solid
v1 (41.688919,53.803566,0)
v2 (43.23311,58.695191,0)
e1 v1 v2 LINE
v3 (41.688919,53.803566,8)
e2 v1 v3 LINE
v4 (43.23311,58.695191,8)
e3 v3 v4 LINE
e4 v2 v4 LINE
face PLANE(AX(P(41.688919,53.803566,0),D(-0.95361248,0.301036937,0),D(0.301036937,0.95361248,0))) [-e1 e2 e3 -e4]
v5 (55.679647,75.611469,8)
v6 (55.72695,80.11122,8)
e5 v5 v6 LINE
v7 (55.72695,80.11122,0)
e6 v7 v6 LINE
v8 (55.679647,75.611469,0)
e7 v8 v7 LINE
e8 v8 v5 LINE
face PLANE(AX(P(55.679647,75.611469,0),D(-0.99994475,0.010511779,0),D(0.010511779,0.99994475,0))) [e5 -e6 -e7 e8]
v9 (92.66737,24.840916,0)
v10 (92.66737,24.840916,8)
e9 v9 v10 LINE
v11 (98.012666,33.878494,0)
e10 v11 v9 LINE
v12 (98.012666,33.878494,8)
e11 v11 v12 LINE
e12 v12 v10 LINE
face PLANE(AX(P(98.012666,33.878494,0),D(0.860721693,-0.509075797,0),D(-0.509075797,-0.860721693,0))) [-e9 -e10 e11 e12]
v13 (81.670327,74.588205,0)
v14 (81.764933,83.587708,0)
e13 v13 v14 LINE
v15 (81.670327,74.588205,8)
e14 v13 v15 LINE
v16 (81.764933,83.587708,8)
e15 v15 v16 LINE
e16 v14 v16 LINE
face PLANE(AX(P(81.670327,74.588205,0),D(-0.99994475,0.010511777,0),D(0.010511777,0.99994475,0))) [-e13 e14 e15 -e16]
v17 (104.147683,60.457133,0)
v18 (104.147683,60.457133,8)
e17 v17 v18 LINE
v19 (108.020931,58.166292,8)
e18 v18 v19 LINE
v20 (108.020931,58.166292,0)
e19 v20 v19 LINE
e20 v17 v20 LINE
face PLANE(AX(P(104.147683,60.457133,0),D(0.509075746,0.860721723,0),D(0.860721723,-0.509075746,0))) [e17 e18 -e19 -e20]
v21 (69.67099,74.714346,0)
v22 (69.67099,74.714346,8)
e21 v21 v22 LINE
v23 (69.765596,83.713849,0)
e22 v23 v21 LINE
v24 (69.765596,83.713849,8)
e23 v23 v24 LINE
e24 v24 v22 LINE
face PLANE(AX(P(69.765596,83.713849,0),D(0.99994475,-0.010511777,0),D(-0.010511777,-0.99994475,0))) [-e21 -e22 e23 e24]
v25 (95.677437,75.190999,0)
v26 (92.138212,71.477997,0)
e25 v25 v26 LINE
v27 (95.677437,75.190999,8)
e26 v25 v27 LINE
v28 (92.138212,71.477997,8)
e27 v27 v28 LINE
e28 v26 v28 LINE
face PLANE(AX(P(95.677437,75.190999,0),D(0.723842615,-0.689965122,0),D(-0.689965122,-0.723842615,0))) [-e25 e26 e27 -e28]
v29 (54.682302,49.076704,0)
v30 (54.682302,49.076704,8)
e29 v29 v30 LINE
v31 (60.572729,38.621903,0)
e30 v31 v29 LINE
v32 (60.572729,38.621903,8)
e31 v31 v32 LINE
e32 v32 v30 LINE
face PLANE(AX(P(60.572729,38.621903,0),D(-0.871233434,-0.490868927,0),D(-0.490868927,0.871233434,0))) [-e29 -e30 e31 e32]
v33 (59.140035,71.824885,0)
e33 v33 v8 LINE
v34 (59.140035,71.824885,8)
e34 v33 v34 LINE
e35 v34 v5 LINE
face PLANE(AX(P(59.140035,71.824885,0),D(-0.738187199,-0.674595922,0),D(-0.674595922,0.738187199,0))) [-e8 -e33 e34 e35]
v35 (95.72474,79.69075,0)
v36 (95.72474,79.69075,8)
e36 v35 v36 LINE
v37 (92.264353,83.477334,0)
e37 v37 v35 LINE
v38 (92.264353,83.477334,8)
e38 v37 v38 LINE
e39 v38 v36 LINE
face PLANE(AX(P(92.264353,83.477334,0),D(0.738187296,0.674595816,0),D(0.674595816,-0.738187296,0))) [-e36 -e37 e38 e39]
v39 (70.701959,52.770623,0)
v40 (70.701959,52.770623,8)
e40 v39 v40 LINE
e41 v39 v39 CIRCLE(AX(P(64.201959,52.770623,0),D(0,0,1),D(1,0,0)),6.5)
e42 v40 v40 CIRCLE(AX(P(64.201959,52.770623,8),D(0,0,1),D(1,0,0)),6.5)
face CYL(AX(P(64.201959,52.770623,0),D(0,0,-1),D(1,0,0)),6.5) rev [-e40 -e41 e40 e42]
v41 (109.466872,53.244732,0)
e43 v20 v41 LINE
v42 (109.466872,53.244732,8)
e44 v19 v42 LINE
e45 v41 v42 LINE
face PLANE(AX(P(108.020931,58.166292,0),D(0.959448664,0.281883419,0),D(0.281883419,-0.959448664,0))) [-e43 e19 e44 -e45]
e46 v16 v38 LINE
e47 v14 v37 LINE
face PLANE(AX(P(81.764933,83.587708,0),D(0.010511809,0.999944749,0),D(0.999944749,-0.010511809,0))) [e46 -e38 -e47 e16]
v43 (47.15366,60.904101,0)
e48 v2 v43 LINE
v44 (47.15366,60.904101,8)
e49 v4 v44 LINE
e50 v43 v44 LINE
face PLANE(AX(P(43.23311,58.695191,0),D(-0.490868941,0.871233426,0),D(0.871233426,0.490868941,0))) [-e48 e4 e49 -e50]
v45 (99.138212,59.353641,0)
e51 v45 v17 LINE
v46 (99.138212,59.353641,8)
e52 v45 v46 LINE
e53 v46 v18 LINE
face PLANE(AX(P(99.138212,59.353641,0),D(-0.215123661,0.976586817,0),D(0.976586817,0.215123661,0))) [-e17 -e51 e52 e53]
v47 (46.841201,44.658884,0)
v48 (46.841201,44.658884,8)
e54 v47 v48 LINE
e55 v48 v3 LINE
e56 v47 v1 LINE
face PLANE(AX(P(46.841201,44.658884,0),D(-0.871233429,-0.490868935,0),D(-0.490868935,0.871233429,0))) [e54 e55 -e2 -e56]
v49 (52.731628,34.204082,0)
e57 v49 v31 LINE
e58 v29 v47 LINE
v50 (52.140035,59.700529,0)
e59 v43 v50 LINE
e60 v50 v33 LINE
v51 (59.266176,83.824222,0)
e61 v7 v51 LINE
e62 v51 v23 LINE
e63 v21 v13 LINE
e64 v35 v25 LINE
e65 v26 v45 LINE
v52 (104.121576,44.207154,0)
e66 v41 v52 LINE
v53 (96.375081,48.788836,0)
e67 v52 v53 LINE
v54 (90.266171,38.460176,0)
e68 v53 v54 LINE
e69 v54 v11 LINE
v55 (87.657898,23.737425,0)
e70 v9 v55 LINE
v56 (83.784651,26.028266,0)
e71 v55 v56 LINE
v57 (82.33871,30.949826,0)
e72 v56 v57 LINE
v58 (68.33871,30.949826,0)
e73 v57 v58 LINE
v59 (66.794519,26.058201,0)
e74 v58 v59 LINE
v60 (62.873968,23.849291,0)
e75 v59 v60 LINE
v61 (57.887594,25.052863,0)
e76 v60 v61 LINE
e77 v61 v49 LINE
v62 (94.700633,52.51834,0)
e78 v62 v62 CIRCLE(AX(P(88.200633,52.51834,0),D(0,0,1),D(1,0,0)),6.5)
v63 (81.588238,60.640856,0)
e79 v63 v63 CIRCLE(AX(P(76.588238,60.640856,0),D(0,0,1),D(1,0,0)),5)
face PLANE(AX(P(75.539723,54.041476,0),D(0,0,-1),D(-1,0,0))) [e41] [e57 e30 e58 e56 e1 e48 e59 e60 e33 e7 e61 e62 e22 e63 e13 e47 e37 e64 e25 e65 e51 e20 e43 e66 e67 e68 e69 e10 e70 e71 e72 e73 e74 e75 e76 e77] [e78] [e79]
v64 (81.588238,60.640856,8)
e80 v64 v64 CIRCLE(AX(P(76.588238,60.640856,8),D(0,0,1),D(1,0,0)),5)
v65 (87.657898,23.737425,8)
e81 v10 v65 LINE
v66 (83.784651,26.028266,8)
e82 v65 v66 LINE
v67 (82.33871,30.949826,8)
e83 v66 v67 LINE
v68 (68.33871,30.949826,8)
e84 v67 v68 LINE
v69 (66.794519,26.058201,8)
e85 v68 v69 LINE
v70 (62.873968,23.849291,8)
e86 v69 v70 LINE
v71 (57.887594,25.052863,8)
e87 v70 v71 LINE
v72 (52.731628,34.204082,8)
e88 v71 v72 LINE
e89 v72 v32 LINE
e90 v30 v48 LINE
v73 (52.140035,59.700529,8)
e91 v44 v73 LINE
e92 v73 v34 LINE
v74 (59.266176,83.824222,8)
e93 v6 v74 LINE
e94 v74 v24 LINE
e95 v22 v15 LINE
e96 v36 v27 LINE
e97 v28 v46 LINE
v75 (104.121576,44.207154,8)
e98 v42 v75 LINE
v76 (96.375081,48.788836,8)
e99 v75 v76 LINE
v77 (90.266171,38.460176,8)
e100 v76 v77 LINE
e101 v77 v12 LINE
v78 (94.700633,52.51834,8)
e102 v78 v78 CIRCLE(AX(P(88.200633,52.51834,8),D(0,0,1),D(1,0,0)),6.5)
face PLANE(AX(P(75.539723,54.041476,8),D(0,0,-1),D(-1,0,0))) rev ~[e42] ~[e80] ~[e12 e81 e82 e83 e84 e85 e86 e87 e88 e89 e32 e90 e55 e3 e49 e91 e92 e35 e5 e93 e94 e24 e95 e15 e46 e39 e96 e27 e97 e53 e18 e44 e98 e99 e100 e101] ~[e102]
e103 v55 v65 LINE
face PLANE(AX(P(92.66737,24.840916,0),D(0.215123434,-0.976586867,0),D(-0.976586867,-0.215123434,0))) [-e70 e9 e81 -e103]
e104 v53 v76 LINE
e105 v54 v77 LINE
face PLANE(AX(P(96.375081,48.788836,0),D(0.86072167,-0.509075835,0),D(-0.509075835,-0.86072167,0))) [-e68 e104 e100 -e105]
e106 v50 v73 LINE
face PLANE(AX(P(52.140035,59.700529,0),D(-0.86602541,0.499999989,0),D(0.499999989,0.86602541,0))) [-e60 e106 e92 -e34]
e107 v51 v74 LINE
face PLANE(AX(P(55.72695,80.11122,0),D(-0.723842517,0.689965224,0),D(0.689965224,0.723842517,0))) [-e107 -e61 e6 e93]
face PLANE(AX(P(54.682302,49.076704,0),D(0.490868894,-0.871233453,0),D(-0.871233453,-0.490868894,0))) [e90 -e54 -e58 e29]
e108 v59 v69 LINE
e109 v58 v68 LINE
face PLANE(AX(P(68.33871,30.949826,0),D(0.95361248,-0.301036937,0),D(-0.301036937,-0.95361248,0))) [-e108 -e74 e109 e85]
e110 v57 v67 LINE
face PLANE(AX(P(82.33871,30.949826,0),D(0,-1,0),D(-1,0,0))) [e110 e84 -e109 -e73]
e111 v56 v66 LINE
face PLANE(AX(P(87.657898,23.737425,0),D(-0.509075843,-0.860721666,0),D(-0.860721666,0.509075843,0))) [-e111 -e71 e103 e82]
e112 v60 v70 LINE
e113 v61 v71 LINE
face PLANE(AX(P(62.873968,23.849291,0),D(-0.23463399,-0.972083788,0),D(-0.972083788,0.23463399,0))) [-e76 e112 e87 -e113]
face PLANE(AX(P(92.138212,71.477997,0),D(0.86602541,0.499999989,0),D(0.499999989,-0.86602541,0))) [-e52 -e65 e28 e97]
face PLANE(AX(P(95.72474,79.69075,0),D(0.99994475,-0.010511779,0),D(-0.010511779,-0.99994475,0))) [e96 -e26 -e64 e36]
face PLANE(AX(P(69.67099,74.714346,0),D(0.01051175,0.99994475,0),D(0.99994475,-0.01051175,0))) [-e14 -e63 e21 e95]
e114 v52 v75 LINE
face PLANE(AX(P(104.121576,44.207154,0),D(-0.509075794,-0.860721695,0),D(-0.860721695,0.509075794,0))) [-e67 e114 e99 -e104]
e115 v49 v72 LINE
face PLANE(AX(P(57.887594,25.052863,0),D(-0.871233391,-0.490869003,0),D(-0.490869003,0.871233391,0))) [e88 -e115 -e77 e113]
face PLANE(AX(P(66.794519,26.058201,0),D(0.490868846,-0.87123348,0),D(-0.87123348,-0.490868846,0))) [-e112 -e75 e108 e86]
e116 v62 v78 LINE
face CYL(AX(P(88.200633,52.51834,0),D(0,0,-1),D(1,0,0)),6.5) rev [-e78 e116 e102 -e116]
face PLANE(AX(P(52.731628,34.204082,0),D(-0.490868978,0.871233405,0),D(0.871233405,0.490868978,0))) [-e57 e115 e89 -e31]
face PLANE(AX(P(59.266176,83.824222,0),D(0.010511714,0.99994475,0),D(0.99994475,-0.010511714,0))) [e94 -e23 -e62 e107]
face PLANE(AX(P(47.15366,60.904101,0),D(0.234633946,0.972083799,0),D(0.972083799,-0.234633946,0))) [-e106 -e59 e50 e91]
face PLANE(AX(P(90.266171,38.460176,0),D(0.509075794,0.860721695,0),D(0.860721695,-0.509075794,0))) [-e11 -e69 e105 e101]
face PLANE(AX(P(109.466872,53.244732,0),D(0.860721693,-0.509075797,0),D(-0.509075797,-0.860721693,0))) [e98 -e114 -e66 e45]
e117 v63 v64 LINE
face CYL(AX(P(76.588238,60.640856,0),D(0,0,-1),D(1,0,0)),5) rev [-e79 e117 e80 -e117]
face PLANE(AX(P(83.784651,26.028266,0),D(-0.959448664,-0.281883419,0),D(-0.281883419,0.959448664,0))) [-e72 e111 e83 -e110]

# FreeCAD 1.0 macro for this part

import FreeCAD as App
import Part
import Sketcher
from FreeCAD import Vector
Q = App.Units.Quantity


def add_polygon(sketch, points):
    """Adds a closed chain of lines whose ends are joined by coincident constraints."""
    first, n = sketch.GeometryCount, len(points)
    for a, b in zip(points, points[1:] + points[:1]):
        sketch.addGeometry(Part.LineSegment(App.Vector(*a, 0), App.Vector(*b, 0)), False)
    for i in range(n):
        sketch.addConstraint(Sketcher.Constraint("Coincident", first + i, 2, first + (i + 1) % n, 1))

doc = App.newDocument("Part")
params = doc.addObject("Spreadsheet::Sheet", "Params")
for row, (alias, value) in enumerate([
    ("sketch1_diameter", "13 mm"),
    ("sketch1_diameter2", "10 mm"),
    ("sketch1_width", "14 mm"),
    ("sketch1_length", "14 mm"),
    ("sketch1_length2", "9 mm"),
    ("pad1_length", "8 mm"),
], start=1):
    params.set(f"A{row}", alias)
    params.set(f"B{row}", "=" + value)
    params.setAlias(f"B{row}", alias)

body = doc.addObject("PartDesign::Body", "Body")

# Sketch on XY plane
sketch1 = body.newObject("Sketcher::SketchObject", "Sketch")
sketch1.AttachmentSupport = (doc.getObject("XY_Plane"), [""])
sketch1.MapMode = "FlatFace"
add_polygon(sketch1, [(99.1, 59.4), (92.1, 71.5), (95.7, 75.2), (95.7, 79.7), (92.3, 83.5), (81.8, 83.6), (81.7, 74.6), (69.7, 74.7), (69.8, 83.7), (59.3, 83.8), (55.7, 80.1), (55.7, 75.6), (59.1, 71.8), (52.1, 59.7), (47.2, 60.9), (43.2, 58.7), (41.7, 53.8), (46.8, 44.7), (54.7, 49.1), (60.6, 38.6), (52.7, 34.2), (57.9, 25.1), (62.9, 23.8), (66.8, 26.1), (68.3, 30.9), (82.3, 30.9), (83.8, 26), (87.7, 23.7), (92.7, 24.8), (98, 33.9), (90.3, 38.5), (96.4, 48.8), (104.1, 44.2), (109.5, 53.2), (108, 58.2), (104.1, 60.5)])  # lines 0-35
sketch1.addGeometry(Part.Circle(Vector(88.2, 52.5, 0), Vector(0, 0, 1), 6.5), False)  # 36
sketch1.addGeometry(Part.Circle(Vector(64.2, 52.8, 0), Vector(0, 0, 1), 6.5), False)  # 37
sketch1.addGeometry(Part.Circle(Vector(76.6, 60.6, 0), Vector(0, 0, 1), 5), False)  # 38
sketch1.addConstraint(Sketcher.Constraint("Horizontal", 24))
sketch1.addConstraint(Sketcher.Constraint("Equal", 36, 37))
sketch1.addConstraint(Sketcher.Constraint("Perpendicular", 2, 4))
sketch1.addConstraint(Sketcher.Constraint("Perpendicular", 4, 5))
sketch1.addConstraint(Sketcher.Constraint("Perpendicular", 5, 6))
sketch1.addConstraint(Sketcher.Constraint("Perpendicular", 6, 7))
sketch1.addConstraint(Sketcher.Constraint("Perpendicular", 7, 8))
sketch1.addConstraint(Sketcher.Constraint("Parallel", 1, 9))
sketch1.addConstraint(Sketcher.Constraint("Perpendicular", 8, 10))
sketch1.addConstraint(Sketcher.Constraint("Parallel", 3, 11))
sketch1.addConstraint(Sketcher.Constraint("Perpendicular", 14, 16))
sketch1.addConstraint(Sketcher.Constraint("Perpendicular", 16, 17))
sketch1.addConstraint(Sketcher.Constraint("Perpendicular", 17, 18))
sketch1.addConstraint(Sketcher.Constraint("Perpendicular", 18, 19))
sketch1.addConstraint(Sketcher.Constraint("Perpendicular", 19, 20))
sketch1.addConstraint(Sketcher.Constraint("Parallel", 13, 21))
sketch1.addConstraint(Sketcher.Constraint("Perpendicular", 20, 22))
sketch1.addConstraint(Sketcher.Constraint("Parallel", 15, 23))
sketch1.addConstraint(Sketcher.Constraint("Perpendicular", 26, 28))
sketch1.addConstraint(Sketcher.Constraint("Perpendicular", 28, 29))
sketch1.addConstraint(Sketcher.Constraint("Perpendicular", 29, 30))
sketch1.addConstraint(Sketcher.Constraint("Perpendicular", 30, 31))
sketch1.addConstraint(Sketcher.Constraint("Perpendicular", 31, 32))
sketch1.addConstraint(Sketcher.Constraint("Parallel", 25, 33))
sketch1.addConstraint(Sketcher.Constraint("Perpendicular", 32, 34))
sketch1.addConstraint(Sketcher.Constraint("Parallel", 27, 35))
sketch1.addConstraint(Sketcher.Constraint("Equal", 1, 3))
sketch1.addConstraint(Sketcher.Constraint("Equal", 5, 7))
sketch1.addConstraint(Sketcher.Constraint("Equal", 4, 8))
sketch1.addConstraint(Sketcher.Constraint("Equal", 3, 9))
sketch1.addConstraint(Sketcher.Constraint("Equal", 2, 10))
sketch1.addConstraint(Sketcher.Constraint("Equal", 9, 11))
sketch1.addConstraint(Sketcher.Constraint("Equal", 0, 12))
sketch1.addConstraint(Sketcher.Constraint("Equal", 11, 13))
sketch1.addConstraint(Sketcher.Constraint("Equal", 10, 14))
sketch1.addConstraint(Sketcher.Constraint("Equal", 13, 15))
sketch1.addConstraint(Sketcher.Constraint("Equal", 7, 17))
sketch1.addConstraint(Sketcher.Constraint("Equal", 6, 18))
sketch1.addConstraint(Sketcher.Constraint("Equal", 17, 19))
sketch1.addConstraint(Sketcher.Constraint("Equal", 15, 21))
sketch1.addConstraint(Sketcher.Constraint("Equal", 14, 22))
sketch1.addConstraint(Sketcher.Constraint("Equal", 21, 23))
sketch1.addConstraint(Sketcher.Constraint("Equal", 21, 25))
sketch1.addConstraint(Sketcher.Constraint("Equal", 22, 26))
sketch1.addConstraint(Sketcher.Constraint("Equal", 25, 27))
sketch1.addConstraint(Sketcher.Constraint("Equal", 8, 28))
sketch1.addConstraint(Sketcher.Constraint("Equal", 19, 29))
sketch1.addConstraint(Sketcher.Constraint("Equal", 18, 30))
sketch1.addConstraint(Sketcher.Constraint("Equal", 29, 31))
sketch1.addConstraint(Sketcher.Constraint("Equal", 28, 32))
sketch1.addConstraint(Sketcher.Constraint("Equal", 27, 33))
sketch1.addConstraint(Sketcher.Constraint("Equal", 26, 34))
sketch1.addConstraint(Sketcher.Constraint("Equal", 33, 35))
sketch1.addConstraint(Sketcher.Constraint("Diameter", 36, 13.0))
sketch1.addConstraint(Sketcher.Constraint("Diameter", 38, 10.0))
sketch1.addConstraint(Sketcher.Constraint("DistanceX", 24, 1, 24, 2, 14.0))
sketch1.addConstraint(Sketcher.Constraint("Angle", 0, Q("119.999999 deg")))
sketch1.addConstraint(Sketcher.Constraint("Angle", 12, Q("-119.999999 deg")))
sketch1.addConstraint(Sketcher.Constraint("Distance", 0, 14.0))
sketch1.addConstraint(Sketcher.Constraint("Distance", 5, 9.0))
sketch1.addConstraint(Sketcher.Constraint("Distance", 6, 12.0))
sketch1.addConstraint(Sketcher.Constraint("Distance", 2, 4.5))
sketch1.addConstraint(Sketcher.Constraint("Distance", 4, 10.5))
sketch1.addConstraint(Sketcher.Constraint("DistanceY", -1, 1, 1, 2, 75.190999))
sketch1.addConstraint(Sketcher.Constraint("DistanceY", -1, 1, 13, 2, 60.904101))
sketch1.addConstraint(Sketcher.Constraint("DistanceX", -1, 1, 16, 2, 46.841201))
sketch1.addConstraint(Sketcher.Constraint("DistanceY", -1, 1, 22, 2, 26.058201))
sketch1.addConstraint(Sketcher.Constraint("DistanceX", -1, 1, 26, 2, 87.657898))
sketch1.addConstraint(Sketcher.Constraint("DistanceX", 38, 3, 1, 2, 19.089199))
sketch1.addConstraint(Sketcher.Constraint("DistanceX", 38, 3, 2, 2, 19.136502))
sketch1.addConstraint(Sketcher.Constraint("DistanceX", 13, 2, 37, 3, 17.048299))
sketch1.addConstraint(Sketcher.Constraint("DistanceX", 16, 2, 17, 2, 7.841101))
sketch1.addConstraint(Sketcher.Constraint("DistanceY", 26, 2, 24, 2, 7.212401))
sketch1.addConstraint(Sketcher.Constraint("DistanceX", 36, 3, 33, 2, 19.820298))
sketch1.addConstraint(Sketcher.Constraint("DistanceY", 36, 3, 35, 2, 6.835301))
sketch1.addConstraint(Sketcher.Constraint("Distance", 1, 5.129571))
sketch1.addConstraint(Sketcher.Constraint("Distance", 20, 10.503751))
sketch1.addConstraint(Sketcher.Constraint("DistanceY", -1, 1, 4, 2, 83.587708))
sketch1.addConstraint(Sketcher.Constraint("DistanceX", -1, 1, 27, 2, 92.66737))
sketch1.addConstraint(Sketcher.Constraint("DistanceY", 38, 3, 0, 2, 10.837141))
sketch1.addConstraint(Sketcher.Constraint("DistanceY", 37, 3, 14, 2, 5.924568))
sketch1.setExpression("Constraints[89]", "Params.sketch1_diameter")
sketch1.setExpression("Constraints[90]", "Params.sketch1_diameter2")
sketch1.setExpression("Constraints[91]", "Params.sketch1_width")
sketch1.setExpression("Constraints[94]", "Params.sketch1_length")
sketch1.setExpression("Constraints[95]", "Params.sketch1_length2")
pad1 = body.newObject("PartDesign::Pad", "Pad")
pad1.Profile = sketch1
pad1.setExpression("Length", "Params.pad1_length")

doc.recompute()
